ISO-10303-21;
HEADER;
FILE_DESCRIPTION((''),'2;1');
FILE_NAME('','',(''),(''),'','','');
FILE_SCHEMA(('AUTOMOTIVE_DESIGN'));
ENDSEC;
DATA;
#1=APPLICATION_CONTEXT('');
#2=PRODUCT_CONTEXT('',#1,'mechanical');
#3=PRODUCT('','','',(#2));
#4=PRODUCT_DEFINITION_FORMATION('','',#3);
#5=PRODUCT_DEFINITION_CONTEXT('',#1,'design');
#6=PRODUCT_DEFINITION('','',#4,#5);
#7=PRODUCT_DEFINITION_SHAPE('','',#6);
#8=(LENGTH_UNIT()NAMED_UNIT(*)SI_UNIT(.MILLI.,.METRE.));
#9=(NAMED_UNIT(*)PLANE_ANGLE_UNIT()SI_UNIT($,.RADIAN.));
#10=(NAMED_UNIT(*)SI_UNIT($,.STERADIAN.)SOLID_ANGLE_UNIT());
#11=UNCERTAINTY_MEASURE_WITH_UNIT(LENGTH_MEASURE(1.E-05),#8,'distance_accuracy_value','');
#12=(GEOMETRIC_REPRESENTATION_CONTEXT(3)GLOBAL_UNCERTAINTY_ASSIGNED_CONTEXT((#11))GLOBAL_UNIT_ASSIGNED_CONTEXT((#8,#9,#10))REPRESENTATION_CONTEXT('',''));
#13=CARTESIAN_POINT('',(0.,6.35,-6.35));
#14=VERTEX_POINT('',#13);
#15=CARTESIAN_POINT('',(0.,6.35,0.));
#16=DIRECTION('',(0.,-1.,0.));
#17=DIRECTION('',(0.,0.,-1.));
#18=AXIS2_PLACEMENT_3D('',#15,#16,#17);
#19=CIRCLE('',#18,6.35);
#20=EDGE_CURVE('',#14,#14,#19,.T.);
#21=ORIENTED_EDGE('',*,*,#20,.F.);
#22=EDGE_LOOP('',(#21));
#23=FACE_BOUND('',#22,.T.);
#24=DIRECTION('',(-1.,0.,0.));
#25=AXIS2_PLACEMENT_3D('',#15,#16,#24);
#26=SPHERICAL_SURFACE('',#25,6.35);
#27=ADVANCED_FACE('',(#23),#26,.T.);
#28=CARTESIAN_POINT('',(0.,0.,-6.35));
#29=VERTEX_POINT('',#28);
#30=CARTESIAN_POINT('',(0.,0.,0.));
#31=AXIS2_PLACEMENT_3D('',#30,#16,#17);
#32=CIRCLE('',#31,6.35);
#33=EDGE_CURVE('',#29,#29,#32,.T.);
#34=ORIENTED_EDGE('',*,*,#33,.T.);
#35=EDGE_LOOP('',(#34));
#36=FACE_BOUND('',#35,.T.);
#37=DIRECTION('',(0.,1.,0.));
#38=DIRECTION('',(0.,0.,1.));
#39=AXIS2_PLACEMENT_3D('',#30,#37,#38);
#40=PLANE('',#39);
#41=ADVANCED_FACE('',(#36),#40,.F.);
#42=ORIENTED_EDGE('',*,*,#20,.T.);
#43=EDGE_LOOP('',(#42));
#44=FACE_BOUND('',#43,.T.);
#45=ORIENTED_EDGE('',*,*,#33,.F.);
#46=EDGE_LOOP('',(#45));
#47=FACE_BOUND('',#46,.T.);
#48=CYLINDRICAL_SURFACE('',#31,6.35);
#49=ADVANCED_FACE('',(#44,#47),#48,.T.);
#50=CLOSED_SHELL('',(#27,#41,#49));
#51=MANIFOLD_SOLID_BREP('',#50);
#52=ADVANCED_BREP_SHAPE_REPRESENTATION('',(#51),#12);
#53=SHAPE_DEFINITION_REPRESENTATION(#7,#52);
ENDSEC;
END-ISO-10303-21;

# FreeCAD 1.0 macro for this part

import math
import FreeCAD as App
import Part
import Sketcher

V = App.Vector
Q = App.Units.Quantity

doc = App.newDocument("Part")
body = doc.addObject("PartDesign::Body", "Body")

# Sketch on XY plane
sketch1 = doc.addObject("Sketcher::SketchObject", "Sketch")
body.addObject(sketch1)
sketch1.AttachmentSupport = (doc.XY_Plane, [""])
sketch1.MapMode = "FlatFace"
sketch1.addGeometry([
    Part.LineSegment(V(0, 0, 0), V(0, 13, 0)),
    Part.ArcOfCircle(Part.Circle(V(0, 6, 0), V(0, 0, 1), 6), math.radians(90), math.radians(180)),
    Part.LineSegment(V(-6, 6, 0), V(-6, 0, 0)),
    Part.LineSegment(V(-6, 0, 0), V(0, 0, 0)),
], False)
sketch1.addConstraint([
    Sketcher.Constraint("Coincident", 0, 2, 1, 1),
    Sketcher.Constraint("Tangent", 1, 2, 2, 1),
    Sketcher.Constraint("Coincident", 2, 2, 3, 1),
    Sketcher.Constraint("Coincident", 3, 2, 0, 1),
    Sketcher.Constraint("Vertical", 0),
    Sketcher.Constraint("Vertical", 2),
    Sketcher.Constraint("Horizontal", 3),
    Sketcher.Constraint("Coincident", 3, 2, -1, 1),
    Sketcher.Constraint("PointOnObject", 1, 3, -2),
    Sketcher.Constraint("Equal", 3, 2),
    Sketcher.Constraint("Radius", 1, Q("0.25 in")),
])
revolution = doc.addObject("PartDesign::Revolution", "Revolution")
body.addObject(revolution)
revolution.Profile = sketch1
revolution.ReferenceAxis = (sketch1, ["V_Axis"])
revolution.Angle = 360

doc.recompute()
